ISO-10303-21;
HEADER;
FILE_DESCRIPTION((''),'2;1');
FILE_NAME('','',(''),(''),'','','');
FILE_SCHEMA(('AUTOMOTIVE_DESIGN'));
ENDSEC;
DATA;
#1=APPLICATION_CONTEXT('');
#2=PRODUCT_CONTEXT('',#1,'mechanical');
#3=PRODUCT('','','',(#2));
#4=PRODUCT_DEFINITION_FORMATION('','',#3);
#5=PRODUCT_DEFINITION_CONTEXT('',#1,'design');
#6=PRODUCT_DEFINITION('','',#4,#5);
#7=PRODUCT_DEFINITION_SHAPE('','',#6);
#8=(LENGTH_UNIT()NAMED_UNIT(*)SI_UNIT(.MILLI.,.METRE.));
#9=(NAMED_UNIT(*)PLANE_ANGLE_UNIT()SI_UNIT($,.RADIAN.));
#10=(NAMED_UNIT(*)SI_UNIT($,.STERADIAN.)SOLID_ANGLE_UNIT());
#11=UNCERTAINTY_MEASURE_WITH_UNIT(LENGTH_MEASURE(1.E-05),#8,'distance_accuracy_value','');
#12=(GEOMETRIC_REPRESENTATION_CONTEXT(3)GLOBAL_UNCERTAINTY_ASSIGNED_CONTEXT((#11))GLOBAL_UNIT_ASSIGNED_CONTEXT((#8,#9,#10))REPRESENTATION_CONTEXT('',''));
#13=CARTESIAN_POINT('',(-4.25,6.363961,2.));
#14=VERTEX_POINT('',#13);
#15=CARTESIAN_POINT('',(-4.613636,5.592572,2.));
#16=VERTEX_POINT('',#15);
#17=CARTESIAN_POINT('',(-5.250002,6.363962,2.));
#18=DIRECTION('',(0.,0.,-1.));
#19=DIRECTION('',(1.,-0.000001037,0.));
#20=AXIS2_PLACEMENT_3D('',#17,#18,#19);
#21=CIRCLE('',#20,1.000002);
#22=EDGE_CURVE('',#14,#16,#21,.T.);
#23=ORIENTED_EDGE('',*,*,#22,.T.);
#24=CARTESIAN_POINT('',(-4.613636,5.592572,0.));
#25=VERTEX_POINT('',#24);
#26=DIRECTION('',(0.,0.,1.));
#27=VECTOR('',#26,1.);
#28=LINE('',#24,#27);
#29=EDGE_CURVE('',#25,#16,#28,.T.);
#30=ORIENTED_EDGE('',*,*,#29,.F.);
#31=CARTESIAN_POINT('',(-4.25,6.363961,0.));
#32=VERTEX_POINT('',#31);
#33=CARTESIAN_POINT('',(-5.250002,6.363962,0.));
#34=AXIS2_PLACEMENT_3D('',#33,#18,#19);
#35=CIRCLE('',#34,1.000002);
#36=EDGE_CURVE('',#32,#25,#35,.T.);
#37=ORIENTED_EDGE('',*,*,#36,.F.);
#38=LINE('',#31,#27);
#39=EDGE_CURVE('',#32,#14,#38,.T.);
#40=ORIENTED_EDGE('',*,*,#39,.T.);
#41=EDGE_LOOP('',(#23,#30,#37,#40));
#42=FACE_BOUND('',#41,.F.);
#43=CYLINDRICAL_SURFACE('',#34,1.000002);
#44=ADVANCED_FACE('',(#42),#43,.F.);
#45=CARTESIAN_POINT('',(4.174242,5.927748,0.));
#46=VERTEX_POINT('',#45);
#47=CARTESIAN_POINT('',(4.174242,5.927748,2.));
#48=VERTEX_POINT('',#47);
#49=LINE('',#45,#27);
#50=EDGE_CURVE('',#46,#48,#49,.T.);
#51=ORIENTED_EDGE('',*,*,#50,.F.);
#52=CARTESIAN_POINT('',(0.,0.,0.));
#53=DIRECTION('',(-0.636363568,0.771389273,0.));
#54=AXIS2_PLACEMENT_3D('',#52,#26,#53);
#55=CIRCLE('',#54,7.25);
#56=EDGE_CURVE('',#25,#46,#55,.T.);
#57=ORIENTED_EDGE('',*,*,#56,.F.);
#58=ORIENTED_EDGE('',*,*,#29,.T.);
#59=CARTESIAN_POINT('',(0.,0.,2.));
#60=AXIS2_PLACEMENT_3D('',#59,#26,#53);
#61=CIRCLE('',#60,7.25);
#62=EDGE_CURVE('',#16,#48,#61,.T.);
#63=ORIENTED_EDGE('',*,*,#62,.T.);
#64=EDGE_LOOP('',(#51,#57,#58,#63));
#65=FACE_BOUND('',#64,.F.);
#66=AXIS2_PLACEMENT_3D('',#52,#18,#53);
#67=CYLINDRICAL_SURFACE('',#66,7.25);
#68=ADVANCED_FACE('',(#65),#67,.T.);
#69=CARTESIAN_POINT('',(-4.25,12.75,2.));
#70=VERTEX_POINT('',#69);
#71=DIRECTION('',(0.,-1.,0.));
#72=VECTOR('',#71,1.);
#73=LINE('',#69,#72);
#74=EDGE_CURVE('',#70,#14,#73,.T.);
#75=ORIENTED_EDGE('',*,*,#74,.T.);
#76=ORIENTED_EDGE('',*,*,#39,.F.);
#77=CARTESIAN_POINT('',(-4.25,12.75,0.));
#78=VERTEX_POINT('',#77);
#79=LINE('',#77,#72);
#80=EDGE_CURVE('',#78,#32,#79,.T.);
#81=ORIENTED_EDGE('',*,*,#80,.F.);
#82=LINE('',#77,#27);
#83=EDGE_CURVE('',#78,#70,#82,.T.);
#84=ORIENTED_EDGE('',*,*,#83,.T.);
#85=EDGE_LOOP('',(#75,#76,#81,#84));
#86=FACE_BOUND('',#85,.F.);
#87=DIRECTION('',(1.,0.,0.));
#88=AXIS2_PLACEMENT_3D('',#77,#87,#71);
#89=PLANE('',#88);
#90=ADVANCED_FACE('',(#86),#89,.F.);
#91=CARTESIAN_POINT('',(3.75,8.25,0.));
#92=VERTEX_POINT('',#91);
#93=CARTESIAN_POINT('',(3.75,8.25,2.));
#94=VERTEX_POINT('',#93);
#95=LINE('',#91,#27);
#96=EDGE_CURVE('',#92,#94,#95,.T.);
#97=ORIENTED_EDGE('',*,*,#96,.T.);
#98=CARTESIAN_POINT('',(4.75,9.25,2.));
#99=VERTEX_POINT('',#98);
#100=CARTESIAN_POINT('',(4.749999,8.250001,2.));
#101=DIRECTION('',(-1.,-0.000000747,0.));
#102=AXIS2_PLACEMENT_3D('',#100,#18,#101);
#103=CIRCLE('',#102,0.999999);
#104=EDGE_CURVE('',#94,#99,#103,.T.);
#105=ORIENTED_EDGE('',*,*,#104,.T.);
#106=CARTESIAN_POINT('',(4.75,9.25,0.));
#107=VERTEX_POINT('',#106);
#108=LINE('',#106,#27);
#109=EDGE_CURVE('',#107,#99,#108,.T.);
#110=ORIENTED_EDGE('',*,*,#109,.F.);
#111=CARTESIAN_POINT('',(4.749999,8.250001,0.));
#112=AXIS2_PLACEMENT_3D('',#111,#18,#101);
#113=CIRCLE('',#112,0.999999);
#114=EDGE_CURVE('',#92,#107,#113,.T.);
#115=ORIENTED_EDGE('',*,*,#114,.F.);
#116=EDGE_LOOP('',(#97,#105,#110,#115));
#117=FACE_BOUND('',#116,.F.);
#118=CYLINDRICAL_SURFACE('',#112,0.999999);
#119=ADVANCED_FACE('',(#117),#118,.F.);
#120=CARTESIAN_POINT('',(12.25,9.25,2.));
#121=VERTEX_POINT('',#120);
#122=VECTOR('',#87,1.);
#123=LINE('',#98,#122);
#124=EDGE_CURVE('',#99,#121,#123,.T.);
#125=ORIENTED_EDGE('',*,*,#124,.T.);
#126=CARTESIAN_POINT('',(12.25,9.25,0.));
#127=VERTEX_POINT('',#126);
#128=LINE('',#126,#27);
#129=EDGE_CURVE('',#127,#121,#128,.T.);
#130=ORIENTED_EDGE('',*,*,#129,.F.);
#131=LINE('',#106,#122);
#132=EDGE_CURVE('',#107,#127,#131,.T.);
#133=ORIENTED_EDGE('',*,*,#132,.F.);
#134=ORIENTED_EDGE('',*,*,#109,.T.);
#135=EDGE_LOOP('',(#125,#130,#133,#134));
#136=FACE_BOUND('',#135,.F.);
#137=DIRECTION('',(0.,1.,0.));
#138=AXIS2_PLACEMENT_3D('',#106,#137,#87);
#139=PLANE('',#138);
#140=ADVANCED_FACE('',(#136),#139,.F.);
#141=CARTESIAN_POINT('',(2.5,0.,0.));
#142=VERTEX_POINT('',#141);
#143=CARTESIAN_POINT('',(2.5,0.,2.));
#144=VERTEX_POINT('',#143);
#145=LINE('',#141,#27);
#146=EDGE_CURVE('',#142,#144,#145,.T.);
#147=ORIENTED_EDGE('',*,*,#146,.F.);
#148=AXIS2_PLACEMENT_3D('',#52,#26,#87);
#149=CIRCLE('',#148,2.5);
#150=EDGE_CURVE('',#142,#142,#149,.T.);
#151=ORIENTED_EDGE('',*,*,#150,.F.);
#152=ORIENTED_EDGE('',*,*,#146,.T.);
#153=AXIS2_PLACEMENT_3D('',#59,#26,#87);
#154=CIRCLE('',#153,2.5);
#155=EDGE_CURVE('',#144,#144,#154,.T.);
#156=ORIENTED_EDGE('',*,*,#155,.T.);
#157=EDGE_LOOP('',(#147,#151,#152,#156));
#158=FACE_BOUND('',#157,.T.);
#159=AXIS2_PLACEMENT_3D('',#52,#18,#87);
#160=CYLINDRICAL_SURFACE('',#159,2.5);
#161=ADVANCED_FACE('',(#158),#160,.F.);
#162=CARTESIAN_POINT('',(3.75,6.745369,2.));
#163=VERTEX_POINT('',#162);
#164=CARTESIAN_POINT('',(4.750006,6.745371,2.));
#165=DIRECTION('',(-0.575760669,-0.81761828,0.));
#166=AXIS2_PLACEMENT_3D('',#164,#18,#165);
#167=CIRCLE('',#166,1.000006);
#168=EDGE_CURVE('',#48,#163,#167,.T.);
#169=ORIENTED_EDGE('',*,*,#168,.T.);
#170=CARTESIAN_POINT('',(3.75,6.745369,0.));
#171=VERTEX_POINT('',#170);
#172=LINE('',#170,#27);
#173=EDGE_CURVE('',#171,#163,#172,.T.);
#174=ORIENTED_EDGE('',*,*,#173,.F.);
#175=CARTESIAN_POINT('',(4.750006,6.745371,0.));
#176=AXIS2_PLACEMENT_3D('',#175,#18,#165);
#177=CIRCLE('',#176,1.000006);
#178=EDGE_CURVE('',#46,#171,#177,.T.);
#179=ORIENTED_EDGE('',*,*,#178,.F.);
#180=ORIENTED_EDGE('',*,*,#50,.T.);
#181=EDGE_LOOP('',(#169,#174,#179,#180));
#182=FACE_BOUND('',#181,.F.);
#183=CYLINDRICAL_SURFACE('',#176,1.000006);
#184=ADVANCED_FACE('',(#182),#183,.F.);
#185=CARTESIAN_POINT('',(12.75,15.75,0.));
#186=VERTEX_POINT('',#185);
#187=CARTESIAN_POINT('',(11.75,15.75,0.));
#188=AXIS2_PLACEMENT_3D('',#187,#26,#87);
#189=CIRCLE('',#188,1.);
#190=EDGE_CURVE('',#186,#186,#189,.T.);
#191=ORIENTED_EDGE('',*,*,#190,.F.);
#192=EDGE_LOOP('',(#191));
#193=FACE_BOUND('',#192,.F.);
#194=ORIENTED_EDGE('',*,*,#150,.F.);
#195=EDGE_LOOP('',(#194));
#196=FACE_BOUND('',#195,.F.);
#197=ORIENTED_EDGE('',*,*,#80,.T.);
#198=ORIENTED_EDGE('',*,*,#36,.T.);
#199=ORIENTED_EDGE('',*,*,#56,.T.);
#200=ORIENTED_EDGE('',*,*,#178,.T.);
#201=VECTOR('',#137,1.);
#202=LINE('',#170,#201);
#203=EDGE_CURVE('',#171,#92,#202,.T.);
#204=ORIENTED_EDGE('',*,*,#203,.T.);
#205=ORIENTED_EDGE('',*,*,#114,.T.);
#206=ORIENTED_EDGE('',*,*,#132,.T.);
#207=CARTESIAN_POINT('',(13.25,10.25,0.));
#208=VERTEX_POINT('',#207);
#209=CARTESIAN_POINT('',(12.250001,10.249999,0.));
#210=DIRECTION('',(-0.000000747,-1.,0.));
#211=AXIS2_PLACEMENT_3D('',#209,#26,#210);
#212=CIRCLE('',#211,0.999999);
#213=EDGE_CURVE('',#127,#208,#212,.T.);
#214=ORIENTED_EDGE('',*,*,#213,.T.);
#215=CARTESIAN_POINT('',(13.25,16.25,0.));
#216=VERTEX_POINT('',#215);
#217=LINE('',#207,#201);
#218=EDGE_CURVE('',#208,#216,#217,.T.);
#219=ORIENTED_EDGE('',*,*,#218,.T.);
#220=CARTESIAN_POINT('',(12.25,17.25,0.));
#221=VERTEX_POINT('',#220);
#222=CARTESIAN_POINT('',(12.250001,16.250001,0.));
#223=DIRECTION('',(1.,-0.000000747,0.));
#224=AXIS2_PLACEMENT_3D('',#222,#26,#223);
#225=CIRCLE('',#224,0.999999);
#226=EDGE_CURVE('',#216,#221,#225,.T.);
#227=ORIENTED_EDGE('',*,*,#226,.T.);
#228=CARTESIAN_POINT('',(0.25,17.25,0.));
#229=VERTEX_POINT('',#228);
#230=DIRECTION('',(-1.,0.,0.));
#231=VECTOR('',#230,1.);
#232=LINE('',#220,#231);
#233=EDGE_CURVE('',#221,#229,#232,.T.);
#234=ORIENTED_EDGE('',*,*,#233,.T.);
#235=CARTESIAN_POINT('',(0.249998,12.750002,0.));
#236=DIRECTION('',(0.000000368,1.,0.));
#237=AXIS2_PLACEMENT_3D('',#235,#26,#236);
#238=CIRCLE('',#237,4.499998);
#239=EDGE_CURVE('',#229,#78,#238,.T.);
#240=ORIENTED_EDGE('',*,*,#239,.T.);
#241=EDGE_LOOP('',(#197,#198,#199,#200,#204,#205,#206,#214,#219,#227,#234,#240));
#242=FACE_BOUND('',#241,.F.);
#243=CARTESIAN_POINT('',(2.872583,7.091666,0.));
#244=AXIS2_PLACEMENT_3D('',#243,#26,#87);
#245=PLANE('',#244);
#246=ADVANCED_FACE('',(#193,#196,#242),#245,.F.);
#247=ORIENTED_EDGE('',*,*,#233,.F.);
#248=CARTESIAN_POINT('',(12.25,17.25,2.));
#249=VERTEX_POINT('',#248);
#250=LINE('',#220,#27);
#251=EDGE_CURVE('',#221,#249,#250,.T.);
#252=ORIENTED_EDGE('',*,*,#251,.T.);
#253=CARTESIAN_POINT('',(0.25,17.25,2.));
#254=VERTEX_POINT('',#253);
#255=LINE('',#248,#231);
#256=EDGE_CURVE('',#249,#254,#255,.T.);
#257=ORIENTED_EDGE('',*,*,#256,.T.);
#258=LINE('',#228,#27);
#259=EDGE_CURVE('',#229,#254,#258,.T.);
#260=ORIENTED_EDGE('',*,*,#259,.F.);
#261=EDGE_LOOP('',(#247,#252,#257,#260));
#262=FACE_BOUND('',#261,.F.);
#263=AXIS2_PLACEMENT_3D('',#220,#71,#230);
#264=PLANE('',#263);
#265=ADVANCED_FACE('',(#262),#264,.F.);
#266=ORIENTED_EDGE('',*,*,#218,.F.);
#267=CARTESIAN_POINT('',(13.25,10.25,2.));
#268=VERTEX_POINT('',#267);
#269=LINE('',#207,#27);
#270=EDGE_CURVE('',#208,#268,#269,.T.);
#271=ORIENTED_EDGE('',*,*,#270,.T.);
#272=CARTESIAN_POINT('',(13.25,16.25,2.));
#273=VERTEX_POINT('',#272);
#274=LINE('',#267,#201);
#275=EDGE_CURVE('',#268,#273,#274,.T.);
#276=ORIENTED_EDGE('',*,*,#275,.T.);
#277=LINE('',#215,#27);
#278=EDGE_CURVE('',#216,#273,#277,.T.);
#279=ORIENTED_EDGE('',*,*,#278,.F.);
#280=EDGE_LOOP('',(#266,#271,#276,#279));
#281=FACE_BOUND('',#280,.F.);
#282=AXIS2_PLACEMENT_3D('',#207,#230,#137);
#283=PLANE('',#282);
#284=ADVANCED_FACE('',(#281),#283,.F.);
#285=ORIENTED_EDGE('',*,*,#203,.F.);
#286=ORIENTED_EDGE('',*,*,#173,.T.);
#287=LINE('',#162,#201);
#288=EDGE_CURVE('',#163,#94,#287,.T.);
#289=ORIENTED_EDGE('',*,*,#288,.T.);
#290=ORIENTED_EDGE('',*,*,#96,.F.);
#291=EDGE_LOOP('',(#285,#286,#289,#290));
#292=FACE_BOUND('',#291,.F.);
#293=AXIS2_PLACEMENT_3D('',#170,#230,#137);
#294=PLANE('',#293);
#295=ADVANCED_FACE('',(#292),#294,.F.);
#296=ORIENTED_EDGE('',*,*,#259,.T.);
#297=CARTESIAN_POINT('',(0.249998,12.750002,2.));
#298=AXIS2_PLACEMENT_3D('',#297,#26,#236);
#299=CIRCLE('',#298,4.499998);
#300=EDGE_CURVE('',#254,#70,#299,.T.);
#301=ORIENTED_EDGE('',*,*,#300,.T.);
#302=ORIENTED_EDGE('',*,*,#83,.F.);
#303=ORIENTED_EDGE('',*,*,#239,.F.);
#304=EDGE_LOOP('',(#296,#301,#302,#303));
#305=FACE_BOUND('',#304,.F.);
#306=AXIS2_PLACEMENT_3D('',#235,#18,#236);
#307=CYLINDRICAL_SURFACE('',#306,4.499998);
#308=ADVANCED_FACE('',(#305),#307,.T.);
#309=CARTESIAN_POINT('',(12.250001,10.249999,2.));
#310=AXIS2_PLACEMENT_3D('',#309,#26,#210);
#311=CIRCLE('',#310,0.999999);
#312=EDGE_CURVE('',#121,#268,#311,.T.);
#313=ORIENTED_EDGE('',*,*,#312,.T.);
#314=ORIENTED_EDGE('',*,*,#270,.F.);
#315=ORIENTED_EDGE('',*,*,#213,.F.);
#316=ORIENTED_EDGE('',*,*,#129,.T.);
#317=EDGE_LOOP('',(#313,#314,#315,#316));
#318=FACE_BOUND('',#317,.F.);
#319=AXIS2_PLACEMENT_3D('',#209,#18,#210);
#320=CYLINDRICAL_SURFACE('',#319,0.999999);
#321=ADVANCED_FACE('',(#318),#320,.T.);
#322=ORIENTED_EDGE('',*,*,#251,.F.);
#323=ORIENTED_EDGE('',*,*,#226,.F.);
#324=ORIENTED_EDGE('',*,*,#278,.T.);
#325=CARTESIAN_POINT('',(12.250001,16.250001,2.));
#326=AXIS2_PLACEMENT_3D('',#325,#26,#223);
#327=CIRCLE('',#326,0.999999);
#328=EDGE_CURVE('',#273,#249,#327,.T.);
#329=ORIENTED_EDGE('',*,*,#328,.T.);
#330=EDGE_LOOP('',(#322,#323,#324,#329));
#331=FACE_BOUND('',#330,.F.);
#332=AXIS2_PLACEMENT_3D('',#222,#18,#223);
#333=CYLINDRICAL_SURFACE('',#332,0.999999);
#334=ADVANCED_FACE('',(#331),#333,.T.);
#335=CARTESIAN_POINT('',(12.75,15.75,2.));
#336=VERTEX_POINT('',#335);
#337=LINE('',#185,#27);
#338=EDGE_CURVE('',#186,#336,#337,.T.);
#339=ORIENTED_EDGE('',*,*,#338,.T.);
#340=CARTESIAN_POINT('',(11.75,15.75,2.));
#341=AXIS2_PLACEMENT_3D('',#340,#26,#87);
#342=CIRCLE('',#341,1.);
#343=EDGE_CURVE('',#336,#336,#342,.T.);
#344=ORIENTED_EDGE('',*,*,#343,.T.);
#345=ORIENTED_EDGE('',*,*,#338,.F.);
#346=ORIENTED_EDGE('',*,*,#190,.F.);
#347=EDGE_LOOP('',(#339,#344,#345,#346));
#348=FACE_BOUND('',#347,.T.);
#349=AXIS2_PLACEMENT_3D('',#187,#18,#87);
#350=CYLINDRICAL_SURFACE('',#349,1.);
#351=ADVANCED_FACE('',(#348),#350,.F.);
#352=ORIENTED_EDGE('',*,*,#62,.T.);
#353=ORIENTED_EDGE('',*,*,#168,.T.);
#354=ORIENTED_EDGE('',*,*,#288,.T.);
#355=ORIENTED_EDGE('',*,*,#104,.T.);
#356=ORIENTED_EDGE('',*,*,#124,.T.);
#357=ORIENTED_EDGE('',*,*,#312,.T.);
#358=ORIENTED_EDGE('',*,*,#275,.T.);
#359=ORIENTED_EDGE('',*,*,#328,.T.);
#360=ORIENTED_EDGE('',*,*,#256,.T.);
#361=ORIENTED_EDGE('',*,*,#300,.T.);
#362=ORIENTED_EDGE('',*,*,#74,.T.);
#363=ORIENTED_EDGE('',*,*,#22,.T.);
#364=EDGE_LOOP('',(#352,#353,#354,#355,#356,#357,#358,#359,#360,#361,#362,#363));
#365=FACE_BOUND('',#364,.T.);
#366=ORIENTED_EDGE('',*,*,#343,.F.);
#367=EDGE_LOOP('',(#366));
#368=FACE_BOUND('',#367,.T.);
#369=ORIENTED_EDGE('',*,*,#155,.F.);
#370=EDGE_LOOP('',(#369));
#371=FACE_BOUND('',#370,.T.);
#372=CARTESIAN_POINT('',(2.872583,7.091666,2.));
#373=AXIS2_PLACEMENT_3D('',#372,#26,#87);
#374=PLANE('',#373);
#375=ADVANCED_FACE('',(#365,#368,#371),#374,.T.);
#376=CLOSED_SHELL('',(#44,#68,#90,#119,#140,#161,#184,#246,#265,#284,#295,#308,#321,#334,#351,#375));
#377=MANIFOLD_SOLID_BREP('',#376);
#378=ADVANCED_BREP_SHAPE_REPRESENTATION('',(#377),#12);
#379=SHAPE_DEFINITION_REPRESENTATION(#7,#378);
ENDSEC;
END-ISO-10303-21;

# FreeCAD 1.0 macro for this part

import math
import FreeCAD as App
import Part
import Sketcher

V = App.Vector
Q = App.Units.Quantity

doc = App.newDocument("Part")
params = doc.addObject("Spreadsheet::Sheet", "Params")
for row, (alias, value) in enumerate([
    ("sketch1_diameter", "5 mm"),
    ("sketch1_diameter2", "2 mm"),
    ("sketch1_radius", "4.499998 mm"),
    ("sketch1_width", "12 mm"),
    ("sketch1_height", "6 mm"),
    ("pad1_length", "2 mm"),
], start=1):
    params.set(f"A{row}", alias)
    params.set(f"B{row}", "=" + value)
    params.setAlias(f"B{row}", alias)

body = doc.addObject("PartDesign::Body", "Body")

sketch1 = body.newObject("Sketcher::SketchObject", "Sketch")
sketch1.AttachmentSupport = (doc.getObject("XY_Plane"), [""])
sketch1.MapMode = "FlatFace"
sketch1.addGeometry([
    Part.ArcOfCircle(Part.Circle(V(-5.3, 6.4, 0), V(0, 0, 1), 1), math.radians(-50), math.radians(0)),
    Part.ArcOfCircle(Part.Circle(V(0, 0, 0), V(0, 0, 1), 7.2), math.radians(130), math.radians(415)),
    Part.ArcOfCircle(Part.Circle(V(4.8, 6.7, 0), V(0, 0, 1), 1), math.radians(-180), math.radians(-125)),
    Part.LineSegment(V(3.8, 6.7, 0), V(3.8, 8.2, 0)),
    Part.ArcOfCircle(Part.Circle(V(4.7, 8.3, 0), V(0, 0, 1), 1), math.radians(90), math.radians(180)),
    Part.LineSegment(V(4.8, 9.2, 0), V(12.2, 9.2, 0)),
    Part.ArcOfCircle(Part.Circle(V(12.3, 10.2, 0), V(0, 0, 1), 1), math.radians(-90), math.radians(0)),
    Part.LineSegment(V(13.2, 10.2, 0), V(13.2, 16.2, 0)),
    Part.ArcOfCircle(Part.Circle(V(12.3, 16.3, 0), V(0, 0, 1), 1), math.radians(0), math.radians(90)),
    Part.LineSegment(V(12.2, 17.2, 0), V(0.2, 17.2, 0)),
    Part.ArcOfCircle(Part.Circle(V(0.2, 12.8, 0), V(0, 0, 1), 4.5), math.radians(90), math.radians(180)),
    Part.LineSegment(V(-4.2, 12.8, 0), V(-4.2, 6.4, 0)),
    Part.Circle(V(0, 0, 0), V(0, 0, 1), 2.5),
    Part.Circle(V(11.8, 15.8, 0), V(0, 0, 1), 1),
], False)
sketch1.addConstraint([
    Sketcher.Constraint("Tangent", 0, 1, 1, 1),
    Sketcher.Constraint("Coincident", 1, 2, 2, 2),
    Sketcher.Constraint("Coincident", 2, 1, 3, 1),
    Sketcher.Constraint("Tangent", 3, 2, 4, 2),
    Sketcher.Constraint("Tangent", 4, 1, 5, 1),
    Sketcher.Constraint("Tangent", 5, 2, 6, 1),
    Sketcher.Constraint("Tangent", 6, 2, 7, 1),
    Sketcher.Constraint("Tangent", 7, 2, 8, 1),
    Sketcher.Constraint("Tangent", 8, 2, 9, 1),
    Sketcher.Constraint("Tangent", 9, 2, 10, 1),
    Sketcher.Constraint("Tangent", 10, 2, 11, 1),
    Sketcher.Constraint("Tangent", 11, 2, 0, 2),
    Sketcher.Constraint("Vertical", 3),
    Sketcher.Constraint("Horizontal", 5),
    Sketcher.Constraint("Vertical", 7),
    Sketcher.Constraint("Horizontal", 9),
    Sketcher.Constraint("Vertical", 11),
    Sketcher.Constraint("Coincident", 1, 3, -1, 1),
    Sketcher.Constraint("Coincident", 12, 3, -1, 1),
    Sketcher.Constraint("Equal", 4, 6),
    Sketcher.Constraint("Equal", 6, 8),
    Sketcher.Constraint("Equal", 8, 13),
    Sketcher.Constraint("Diameter", 12, Q("5 mm")),
    Sketcher.Constraint("Diameter", 13, Q("2 mm")),
    Sketcher.Constraint("Radius", 10, Q("4.499998 mm")),
    Sketcher.Constraint("DistanceX", 9, 2, 9, 1, Q("12 mm")),
    Sketcher.Constraint("DistanceY", 7, 1, 7, 2, Q("6 mm")),
    Sketcher.Constraint("Radius", 1, Q("7.25 mm")),
    Sketcher.Constraint("DistanceX", 5, 1, 5, 2, Q("7.5 mm")),
    Sketcher.Constraint("DistanceX", 0, 3, 4, 3, Q("10.000002 mm")),
    Sketcher.Constraint("DistanceX", 4, 3, 13, 3, Q("7.000001 mm")),
    Sketcher.Constraint("DistanceY", 10, 3, 13, 3, Q("2.999998 mm")),
    Sketcher.Constraint("DistanceX", -1, 1, 4, 3, Q("4.749999 mm")),
    Sketcher.Constraint("DistanceY", -1, 1, 4, 3, Q("8.250001 mm")),
    Sketcher.Constraint("Radius", 2, Q("1.000006 mm")),
    Sketcher.Constraint("DistanceY", 3, 1, 3, 2, Q("1.504631 mm")),
    Sketcher.Constraint("DistanceX", -1, 1, 1, 2, Q("4.174242 mm")),
])
sketch1.setExpression("Constraints[22]", "Params.sketch1_diameter")
sketch1.setExpression("Constraints[23]", "Params.sketch1_diameter2")
sketch1.setExpression("Constraints[24]", "Params.sketch1_radius")
sketch1.setExpression("Constraints[25]", "Params.sketch1_width")
sketch1.setExpression("Constraints[26]", "Params.sketch1_height")
pad1 = body.newObject("PartDesign::Pad", "Pad")
pad1.Profile = sketch1
pad1.setExpression("Length", "Params.pad1_length")

doc.recompute()
